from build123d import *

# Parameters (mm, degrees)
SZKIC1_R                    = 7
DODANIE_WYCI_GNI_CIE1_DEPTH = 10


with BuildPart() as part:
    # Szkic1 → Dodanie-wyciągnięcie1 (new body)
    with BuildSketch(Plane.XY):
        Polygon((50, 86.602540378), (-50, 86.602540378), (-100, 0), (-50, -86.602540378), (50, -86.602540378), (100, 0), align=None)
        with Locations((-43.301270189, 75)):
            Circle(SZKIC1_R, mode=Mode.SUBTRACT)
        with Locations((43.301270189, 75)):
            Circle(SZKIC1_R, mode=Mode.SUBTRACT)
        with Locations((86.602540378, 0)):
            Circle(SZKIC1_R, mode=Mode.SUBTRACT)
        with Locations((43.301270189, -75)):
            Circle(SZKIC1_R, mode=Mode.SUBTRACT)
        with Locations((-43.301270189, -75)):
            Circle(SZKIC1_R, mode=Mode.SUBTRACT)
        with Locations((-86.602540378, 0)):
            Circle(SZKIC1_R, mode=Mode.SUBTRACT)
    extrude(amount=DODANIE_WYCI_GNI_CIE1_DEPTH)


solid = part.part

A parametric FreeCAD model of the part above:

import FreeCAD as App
import Part
import Sketcher
Q = App.Units.Quantity

doc = App.newDocument("Part")
params = doc.addObject("Spreadsheet::Sheet", "Params")
for row, (alias, value) in enumerate([
    ("sketch1_diameter", "14 mm"),
    ("sketch1_width", "100 mm"),
    ("sketch1_length", "100 mm"),
    ("pad1_length", "10 mm"),
], start=1):
    params.set(f"A{row}", alias)
    params.set(f"B{row}", "=" + value)
    params.setAlias(f"B{row}", alias)

body = doc.addObject("PartDesign::Body", "Body")

# Sketch on XY plane
sketch1 = body.newObject("Sketcher::SketchObject", "Sketch")
sketch1.AttachmentSupport = (doc.getObject("XY_Plane"), [""])
sketch1.MapMode = "FlatFace"
sketch1.addGeometry([
    Part.LineSegment(App.Vector(50, 86.60254, 0), App.Vector(-50, 86.60254, 0)),  # 0
    Part.LineSegment(App.Vector(-50, 86.60254, 0), App.Vector(-100, 0, 0)),  # 1
    Part.LineSegment(App.Vector(-100, 0, 0), App.Vector(-50, -86.60254, 0)),  # 2
    Part.LineSegment(App.Vector(-50, -86.60254, 0), App.Vector(50, -86.60254, 0)),  # 3
    Part.LineSegment(App.Vector(50, -86.60254, 0), App.Vector(100, 0, 0)),  # 4
    Part.LineSegment(App.Vector(100, 0, 0), App.Vector(50, 86.60254, 0)),  # 5
    Part.Circle(App.Vector(-43.30127, -75, 0), App.Vector(0, 0, 1), 7),  # 6
    Part.Circle(App.Vector(43.30127, -75, 0), App.Vector(0, 0, 1), 7),  # 7
    Part.Circle(App.Vector(-86.60254, 0, 0), App.Vector(0, 0, 1), 7),  # 8
    Part.Circle(App.Vector(-43.30127, 75, 0), App.Vector(0, 0, 1), 7),  # 9
    Part.Circle(App.Vector(86.60254, 0, 0), App.Vector(0, 0, 1), 7),  # 10
    Part.Circle(App.Vector(43.30127, 75, 0), App.Vector(0, 0, 1), 7),  # 11
], False)
sketch1.addConstraint([
    Sketcher.Constraint("Coincident", 0, 2, 1, 1),
    Sketcher.Constraint("Coincident", 1, 2, 2, 1),
    Sketcher.Constraint("Coincident", 2, 2, 3, 1),
    Sketcher.Constraint("Coincident", 3, 2, 4, 1),
    Sketcher.Constraint("Coincident", 4, 2, 5, 1),
    Sketcher.Constraint("Coincident", 5, 2, 0, 1),
    Sketcher.Constraint("Horizontal", 0),
    Sketcher.Constraint("Horizontal", 3),
    Sketcher.Constraint("Equal", 6, 7),
    Sketcher.Constraint("Equal", 7, 8),
    Sketcher.Constraint("Equal", 8, 9),
    Sketcher.Constraint("Equal", 9, 10),
    Sketcher.Constraint("Equal", 10, 11),
    Sketcher.Constraint("Symmetric", 7, 3, 9, 3, -1, 1),
    Sketcher.Constraint("Symmetric", 8, 3, 10, 3, -1, 1),
    Sketcher.Constraint("Symmetric", 6, 3, 11, 3, -1, 1),
    Sketcher.Constraint("Symmetric", 0, 2, 3, 2, -1, 1),
    Sketcher.Constraint("Symmetric", 1, 2, 4, 2, -1, 1),
    Sketcher.Constraint("Symmetric", 6, 3, 7, 3, -2),
    Sketcher.Constraint("PointOnObject", 8, 3, -1),
    Sketcher.Constraint("PointOnObject", 1, 2, -1),
    Sketcher.Constraint("Parallel", 2, 5),
    Sketcher.Constraint("Vertical", 0, 2, 2, 2),
    Sketcher.Constraint("Diameter", 6, 14.0),
    Sketcher.Constraint("DistanceX", 0, 2, 0, 1, 100.0),
    Sketcher.Constraint("Angle", 1, Q("-120 deg")),
    Sketcher.Constraint("Distance", 1, 100.0),
    Sketcher.Constraint("DistanceY", 6, 3, -1, 1, 75.0),
    Sketcher.Constraint("DistanceX", 6, 3, -1, 1, 43.30127),
    Sketcher.Constraint("DistanceX", 8, 3, -1, 1, 86.60254),
])
sketch1.setExpression("Constraints[23]", "Params.sketch1_diameter")
sketch1.setExpression("Constraints[24]", "Params.sketch1_width")
sketch1.setExpression("Constraints[26]", "Params.sketch1_length")
pad1 = body.newObject("PartDesign::Pad", "Pad")
pad1.Profile = sketch1
pad1.setExpression("Length", "Params.pad1_length")

doc.recompute()
